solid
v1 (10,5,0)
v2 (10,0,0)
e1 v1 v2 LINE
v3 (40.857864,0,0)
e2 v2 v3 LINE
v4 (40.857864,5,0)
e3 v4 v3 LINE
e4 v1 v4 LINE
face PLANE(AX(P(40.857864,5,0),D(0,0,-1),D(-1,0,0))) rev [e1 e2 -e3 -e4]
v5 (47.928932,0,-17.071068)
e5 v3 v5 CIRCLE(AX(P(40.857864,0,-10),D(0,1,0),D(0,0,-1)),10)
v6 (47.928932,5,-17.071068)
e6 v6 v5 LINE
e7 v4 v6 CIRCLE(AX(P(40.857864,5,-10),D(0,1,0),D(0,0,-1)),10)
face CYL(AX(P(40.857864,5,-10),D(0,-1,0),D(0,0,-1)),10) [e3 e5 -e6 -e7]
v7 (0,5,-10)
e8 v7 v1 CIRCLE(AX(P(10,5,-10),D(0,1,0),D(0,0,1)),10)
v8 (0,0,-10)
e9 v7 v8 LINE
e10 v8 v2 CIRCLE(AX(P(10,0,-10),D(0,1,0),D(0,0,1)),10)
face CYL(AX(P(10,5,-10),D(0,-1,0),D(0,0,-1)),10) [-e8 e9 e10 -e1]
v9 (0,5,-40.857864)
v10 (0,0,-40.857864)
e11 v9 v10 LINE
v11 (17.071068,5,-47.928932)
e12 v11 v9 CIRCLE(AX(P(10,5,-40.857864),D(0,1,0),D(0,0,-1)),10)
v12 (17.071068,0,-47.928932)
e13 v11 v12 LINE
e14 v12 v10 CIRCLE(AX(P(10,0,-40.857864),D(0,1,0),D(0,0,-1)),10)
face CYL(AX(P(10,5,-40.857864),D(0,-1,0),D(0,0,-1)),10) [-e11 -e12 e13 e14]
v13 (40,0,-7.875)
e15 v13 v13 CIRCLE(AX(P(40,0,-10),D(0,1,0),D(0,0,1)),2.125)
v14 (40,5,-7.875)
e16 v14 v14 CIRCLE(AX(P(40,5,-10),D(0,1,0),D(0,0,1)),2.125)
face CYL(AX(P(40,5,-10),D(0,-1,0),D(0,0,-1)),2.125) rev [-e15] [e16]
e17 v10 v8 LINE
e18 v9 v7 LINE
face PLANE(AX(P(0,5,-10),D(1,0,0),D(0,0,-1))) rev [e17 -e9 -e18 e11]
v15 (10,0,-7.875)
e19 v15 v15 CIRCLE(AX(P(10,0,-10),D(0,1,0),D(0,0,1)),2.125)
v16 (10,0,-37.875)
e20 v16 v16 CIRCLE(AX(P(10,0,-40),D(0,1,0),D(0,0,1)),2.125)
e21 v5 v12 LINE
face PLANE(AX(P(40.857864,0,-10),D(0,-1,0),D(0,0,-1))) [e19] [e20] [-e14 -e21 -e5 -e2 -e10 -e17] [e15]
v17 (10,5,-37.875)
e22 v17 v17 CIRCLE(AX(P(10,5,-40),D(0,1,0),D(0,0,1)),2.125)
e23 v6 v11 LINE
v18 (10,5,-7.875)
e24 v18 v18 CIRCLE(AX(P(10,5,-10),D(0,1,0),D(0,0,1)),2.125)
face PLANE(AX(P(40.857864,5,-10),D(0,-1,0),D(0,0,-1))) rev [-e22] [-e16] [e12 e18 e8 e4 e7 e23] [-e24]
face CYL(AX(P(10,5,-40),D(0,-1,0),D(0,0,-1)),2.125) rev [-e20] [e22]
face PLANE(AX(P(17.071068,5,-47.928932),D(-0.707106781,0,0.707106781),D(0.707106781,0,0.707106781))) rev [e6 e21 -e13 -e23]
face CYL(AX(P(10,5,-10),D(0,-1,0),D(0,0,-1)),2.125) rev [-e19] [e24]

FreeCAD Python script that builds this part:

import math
import FreeCAD as App
import Part
import Sketcher
Q = App.Units.Quantity

doc = App.newDocument("Part")
body = doc.addObject("PartDesign::Body", "Body")

# Sketch on XZ plane
sketch1 = doc.addObject("Sketcher::SketchObject", "Sketch")
body.addObject(sketch1)
sketch1.AttachmentSupport = (doc.XZ_Plane, [""])
sketch1.MapMode = "FlatFace"
sketch1.addGeometry(Part.LineSegment(App.Vector(0, -40.857864, 0), App.Vector(0, -10, 0)), False)
sketch1.addGeometry(Part.ArcOfCircle(Part.Circle(App.Vector(10, -10, 0), App.Vector(0, 0, 1), 10), math.radians(90), math.radians(180)), False)
sketch1.addGeometry(Part.LineSegment(App.Vector(10, 0, 0), App.Vector(40.857864, 0, 0)), False)
sketch1.addGeometry(Part.ArcOfCircle(Part.Circle(App.Vector(40.857864, -10, 0), App.Vector(0, 0, 1), 10), math.radians(-45), math.radians(90)), False)
sketch1.addGeometry(Part.LineSegment(App.Vector(47.928932, -17.071068, 0), App.Vector(17.071068, -47.928932, 0)), False)
sketch1.addGeometry(Part.ArcOfCircle(Part.Circle(App.Vector(10, -40.857864, 0), App.Vector(0, 0, 1), 10), math.radians(180), math.radians(315)), False)
sketch1.addGeometry(Part.Circle(App.Vector(40, -10, 0), App.Vector(0, 0, 1), 2.125), False)
sketch1.addGeometry(Part.Circle(App.Vector(10, -10, 0), App.Vector(0, 0, 1), 2.125), False)
sketch1.addGeometry(Part.Circle(App.Vector(10, -40, 0), App.Vector(0, 0, 1), 2.125), False)
sketch1.addConstraint(Sketcher.Constraint("Tangent", 0, 2, 1, 2))
sketch1.addConstraint(Sketcher.Constraint("Tangent", 1, 1, 2, 1))
sketch1.addConstraint(Sketcher.Constraint("Tangent", 2, 2, 3, 2))
sketch1.addConstraint(Sketcher.Constraint("Tangent", 3, 1, 4, 1))
sketch1.addConstraint(Sketcher.Constraint("Tangent", 4, 2, 5, 2))
sketch1.addConstraint(Sketcher.Constraint("Tangent", 5, 1, 0, 1))
sketch1.addConstraint(Sketcher.Constraint("Vertical", 0))
sketch1.addConstraint(Sketcher.Constraint("Horizontal", 2))
sketch1.addConstraint(Sketcher.Constraint("Coincident", 7, 3, 1, 3))
sketch1.addConstraint(Sketcher.Constraint("Equal", 1, 3))
sketch1.addConstraint(Sketcher.Constraint("Equal", 3, 5))
sketch1.addConstraint(Sketcher.Constraint("Equal", 6, 7))
sketch1.addConstraint(Sketcher.Constraint("Equal", 7, 8))
sketch1.addConstraint(Sketcher.Constraint("PointOnObject", 0, 2, -2))
sketch1.addConstraint(Sketcher.Constraint("PointOnObject", 1, 1, -1))
sketch1.addConstraint(Sketcher.Constraint("Horizontal", 3, 3, 6, 3))
sketch1.addConstraint(Sketcher.Constraint("Vertical", 7, 3, 8, 3))
sketch1.addConstraint(Sketcher.Constraint("Equal", 2, 0))
sketch1.addConstraint(Sketcher.Constraint("Radius", 1, Q("10 mm")))
sketch1.addConstraint(Sketcher.Constraint("Diameter", 6, Q("4.25 mm")))
sketch1.addConstraint(Sketcher.Constraint("DistanceX", -1, 1, 6, 3, Q("40 mm")))
sketch1.addConstraint(Sketcher.Constraint("DistanceY", 8, 3, -1, 1, Q("40 mm")))
sketch1.addConstraint(Sketcher.Constraint("Distance", 4, Q("43.63961 mm")))
pad1 = doc.addObject("PartDesign::Pad", "Pad")
body.addObject(pad1)
pad1.Profile = sketch1
pad1.Length = 5
pad1.Reversed = True

doc.recompute()
